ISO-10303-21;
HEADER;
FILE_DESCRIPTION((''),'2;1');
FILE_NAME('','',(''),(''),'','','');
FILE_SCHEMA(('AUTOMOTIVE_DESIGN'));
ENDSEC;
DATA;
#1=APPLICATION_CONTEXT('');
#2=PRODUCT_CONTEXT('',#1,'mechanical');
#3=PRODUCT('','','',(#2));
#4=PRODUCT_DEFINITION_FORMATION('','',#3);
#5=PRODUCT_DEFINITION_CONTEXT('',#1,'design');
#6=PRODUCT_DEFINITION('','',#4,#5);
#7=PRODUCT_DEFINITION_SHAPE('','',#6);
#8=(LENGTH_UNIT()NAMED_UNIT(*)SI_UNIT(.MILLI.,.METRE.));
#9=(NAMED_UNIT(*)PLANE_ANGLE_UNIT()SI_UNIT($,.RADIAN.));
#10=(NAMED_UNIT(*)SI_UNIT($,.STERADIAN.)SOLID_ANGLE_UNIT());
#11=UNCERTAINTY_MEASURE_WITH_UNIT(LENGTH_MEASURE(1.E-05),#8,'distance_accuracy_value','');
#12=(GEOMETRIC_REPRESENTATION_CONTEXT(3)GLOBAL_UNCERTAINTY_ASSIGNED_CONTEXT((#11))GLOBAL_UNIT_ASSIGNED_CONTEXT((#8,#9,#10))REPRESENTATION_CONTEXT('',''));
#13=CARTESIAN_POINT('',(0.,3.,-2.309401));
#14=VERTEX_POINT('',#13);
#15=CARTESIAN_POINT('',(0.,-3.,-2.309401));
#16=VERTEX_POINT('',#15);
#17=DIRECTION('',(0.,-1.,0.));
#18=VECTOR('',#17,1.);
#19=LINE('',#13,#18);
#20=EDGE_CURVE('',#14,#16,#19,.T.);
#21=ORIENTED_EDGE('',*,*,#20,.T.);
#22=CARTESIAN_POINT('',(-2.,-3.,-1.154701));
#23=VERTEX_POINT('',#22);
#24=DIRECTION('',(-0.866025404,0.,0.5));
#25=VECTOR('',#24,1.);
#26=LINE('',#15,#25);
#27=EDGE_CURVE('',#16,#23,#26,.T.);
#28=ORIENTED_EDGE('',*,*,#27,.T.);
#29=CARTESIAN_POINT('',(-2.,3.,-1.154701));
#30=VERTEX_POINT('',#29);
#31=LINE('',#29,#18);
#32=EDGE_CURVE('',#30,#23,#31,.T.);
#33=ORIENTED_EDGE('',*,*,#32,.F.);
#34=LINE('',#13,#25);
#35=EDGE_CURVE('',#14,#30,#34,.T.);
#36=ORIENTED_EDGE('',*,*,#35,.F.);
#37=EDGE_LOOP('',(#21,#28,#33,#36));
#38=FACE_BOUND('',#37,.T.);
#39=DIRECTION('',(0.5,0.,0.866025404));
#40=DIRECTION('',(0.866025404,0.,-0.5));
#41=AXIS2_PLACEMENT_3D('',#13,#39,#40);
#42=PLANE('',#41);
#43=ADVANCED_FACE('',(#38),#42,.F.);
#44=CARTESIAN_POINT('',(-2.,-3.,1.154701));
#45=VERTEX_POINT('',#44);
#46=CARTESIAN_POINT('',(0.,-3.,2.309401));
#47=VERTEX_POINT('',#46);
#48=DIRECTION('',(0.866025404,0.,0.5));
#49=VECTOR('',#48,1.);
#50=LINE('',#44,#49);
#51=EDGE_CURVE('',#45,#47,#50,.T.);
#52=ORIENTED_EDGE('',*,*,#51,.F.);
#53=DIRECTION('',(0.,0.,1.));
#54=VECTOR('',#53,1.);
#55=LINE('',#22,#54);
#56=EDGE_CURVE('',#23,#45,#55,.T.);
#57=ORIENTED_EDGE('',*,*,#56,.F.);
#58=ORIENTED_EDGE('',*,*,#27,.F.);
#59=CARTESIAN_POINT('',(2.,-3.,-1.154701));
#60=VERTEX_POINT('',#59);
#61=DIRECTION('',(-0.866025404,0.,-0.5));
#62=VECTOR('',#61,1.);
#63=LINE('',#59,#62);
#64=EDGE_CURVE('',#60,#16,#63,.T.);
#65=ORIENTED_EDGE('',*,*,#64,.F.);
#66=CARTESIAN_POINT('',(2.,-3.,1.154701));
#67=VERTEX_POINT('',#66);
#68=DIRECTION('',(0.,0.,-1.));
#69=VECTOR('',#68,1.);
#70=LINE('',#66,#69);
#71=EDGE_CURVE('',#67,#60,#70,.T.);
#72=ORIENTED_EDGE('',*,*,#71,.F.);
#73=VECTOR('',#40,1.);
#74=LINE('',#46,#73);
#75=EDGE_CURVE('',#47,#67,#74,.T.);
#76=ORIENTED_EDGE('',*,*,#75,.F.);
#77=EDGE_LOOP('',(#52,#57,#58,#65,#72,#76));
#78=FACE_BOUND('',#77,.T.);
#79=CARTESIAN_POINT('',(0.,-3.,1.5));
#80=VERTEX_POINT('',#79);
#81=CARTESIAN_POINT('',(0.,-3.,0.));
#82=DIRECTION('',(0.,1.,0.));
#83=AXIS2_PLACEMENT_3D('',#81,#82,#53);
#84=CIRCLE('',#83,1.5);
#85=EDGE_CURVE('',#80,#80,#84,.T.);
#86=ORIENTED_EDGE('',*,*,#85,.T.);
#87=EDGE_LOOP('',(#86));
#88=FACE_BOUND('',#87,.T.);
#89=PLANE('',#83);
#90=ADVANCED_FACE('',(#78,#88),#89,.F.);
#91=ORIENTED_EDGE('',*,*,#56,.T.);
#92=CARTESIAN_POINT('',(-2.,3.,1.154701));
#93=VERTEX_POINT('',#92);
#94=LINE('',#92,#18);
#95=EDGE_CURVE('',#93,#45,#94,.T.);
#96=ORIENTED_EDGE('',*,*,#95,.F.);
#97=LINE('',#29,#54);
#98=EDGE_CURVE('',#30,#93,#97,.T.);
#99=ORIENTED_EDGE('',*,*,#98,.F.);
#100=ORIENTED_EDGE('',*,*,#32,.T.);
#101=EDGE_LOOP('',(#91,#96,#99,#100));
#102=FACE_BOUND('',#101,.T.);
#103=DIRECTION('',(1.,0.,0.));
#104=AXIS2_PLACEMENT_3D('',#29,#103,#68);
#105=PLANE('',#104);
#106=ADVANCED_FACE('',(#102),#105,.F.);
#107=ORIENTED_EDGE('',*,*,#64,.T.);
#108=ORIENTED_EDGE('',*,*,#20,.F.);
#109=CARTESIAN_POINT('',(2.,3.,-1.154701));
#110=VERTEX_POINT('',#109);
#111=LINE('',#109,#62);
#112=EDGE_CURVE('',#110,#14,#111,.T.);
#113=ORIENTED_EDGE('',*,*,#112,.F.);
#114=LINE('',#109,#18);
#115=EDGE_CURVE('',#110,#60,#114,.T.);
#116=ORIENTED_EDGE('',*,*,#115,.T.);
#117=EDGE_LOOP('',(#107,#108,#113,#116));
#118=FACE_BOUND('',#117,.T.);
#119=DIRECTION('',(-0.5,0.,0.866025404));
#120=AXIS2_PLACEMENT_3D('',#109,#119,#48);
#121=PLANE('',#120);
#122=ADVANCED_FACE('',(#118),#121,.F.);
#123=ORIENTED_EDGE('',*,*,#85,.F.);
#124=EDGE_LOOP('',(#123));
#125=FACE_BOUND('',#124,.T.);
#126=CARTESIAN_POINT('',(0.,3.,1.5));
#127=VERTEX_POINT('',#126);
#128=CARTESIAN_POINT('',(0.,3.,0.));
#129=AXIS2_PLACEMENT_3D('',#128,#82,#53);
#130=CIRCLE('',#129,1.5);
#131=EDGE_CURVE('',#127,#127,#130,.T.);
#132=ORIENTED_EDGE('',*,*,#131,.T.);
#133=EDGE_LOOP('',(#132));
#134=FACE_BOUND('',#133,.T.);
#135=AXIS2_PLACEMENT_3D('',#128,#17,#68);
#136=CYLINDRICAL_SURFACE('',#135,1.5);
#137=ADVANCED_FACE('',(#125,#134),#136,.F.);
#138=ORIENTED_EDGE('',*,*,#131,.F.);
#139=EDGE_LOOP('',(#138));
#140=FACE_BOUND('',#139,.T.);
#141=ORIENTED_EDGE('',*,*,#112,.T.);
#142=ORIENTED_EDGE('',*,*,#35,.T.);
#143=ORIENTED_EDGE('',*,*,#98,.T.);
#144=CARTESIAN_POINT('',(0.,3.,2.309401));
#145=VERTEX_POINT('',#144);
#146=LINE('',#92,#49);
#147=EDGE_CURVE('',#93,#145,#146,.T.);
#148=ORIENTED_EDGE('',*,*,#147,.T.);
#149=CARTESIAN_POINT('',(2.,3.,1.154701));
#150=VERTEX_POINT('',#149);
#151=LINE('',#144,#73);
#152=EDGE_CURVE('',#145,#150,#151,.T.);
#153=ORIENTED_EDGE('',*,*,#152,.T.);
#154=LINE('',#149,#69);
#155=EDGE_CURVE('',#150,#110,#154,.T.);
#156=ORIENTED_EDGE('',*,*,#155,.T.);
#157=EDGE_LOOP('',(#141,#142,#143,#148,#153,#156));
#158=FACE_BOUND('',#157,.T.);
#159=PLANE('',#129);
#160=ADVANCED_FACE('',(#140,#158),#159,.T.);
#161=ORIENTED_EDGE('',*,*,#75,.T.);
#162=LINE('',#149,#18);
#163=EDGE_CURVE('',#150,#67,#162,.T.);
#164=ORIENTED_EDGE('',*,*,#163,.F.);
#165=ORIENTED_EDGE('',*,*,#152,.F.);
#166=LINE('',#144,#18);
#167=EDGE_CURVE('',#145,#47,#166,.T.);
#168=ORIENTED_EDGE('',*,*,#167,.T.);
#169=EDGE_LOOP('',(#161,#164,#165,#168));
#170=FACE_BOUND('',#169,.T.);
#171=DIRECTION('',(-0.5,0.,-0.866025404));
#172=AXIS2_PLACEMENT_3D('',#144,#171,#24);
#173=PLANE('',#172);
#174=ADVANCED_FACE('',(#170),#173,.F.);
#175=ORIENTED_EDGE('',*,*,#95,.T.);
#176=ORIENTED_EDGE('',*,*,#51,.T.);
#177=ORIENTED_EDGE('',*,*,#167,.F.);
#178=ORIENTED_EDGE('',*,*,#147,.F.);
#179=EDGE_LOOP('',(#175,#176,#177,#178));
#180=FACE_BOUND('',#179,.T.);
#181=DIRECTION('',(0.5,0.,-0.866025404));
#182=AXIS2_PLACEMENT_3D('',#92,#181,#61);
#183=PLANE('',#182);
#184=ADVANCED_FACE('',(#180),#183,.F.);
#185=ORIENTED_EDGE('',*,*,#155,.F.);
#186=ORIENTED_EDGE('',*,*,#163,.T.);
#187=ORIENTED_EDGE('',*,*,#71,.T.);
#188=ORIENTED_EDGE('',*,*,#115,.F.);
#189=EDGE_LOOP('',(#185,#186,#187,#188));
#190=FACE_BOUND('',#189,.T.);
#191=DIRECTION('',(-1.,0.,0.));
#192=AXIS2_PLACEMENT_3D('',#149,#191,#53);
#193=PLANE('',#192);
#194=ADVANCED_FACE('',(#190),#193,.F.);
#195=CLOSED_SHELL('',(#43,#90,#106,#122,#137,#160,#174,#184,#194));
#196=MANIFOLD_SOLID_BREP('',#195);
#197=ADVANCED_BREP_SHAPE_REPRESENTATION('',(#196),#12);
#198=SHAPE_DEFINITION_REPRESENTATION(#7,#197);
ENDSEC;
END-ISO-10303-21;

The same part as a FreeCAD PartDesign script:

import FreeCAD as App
import Part
import Sketcher
from FreeCAD import Vector
Q = App.Units.Quantity

doc = App.newDocument("Part")
body = doc.addObject("PartDesign::Body", "Body")

sketch1 = body.newObject("Sketcher::SketchObject", "Sketch")
sketch1.AttachmentSupport = (doc.getObject("XZ_Plane"), [""])
sketch1.MapMode = "FlatFace"
sketch1.addGeometry(Part.LineSegment(Vector(2, -1.2, 0), Vector(0, -2.3, 0)), False)
sketch1.addGeometry(Part.LineSegment(Vector(0, -2.3, 0), Vector(-2, -1.2, 0)), False)
sketch1.addGeometry(Part.LineSegment(Vector(-2, -1.2, 0), Vector(-2, 1.2, 0)), False)
sketch1.addGeometry(Part.LineSegment(Vector(-2, 1.2, 0), Vector(0, 2.3, 0)), False)
sketch1.addGeometry(Part.LineSegment(Vector(0, 2.3, 0), Vector(2, 1.2, 0)), False)
sketch1.addGeometry(Part.LineSegment(Vector(2, 1.2, 0), Vector(2, -1.2, 0)), False)
sketch1.addGeometry(Part.Circle(Vector(0, 0, 0), Vector(0, 0, 1), 1.5), False)
sketch1.addConstraint(Sketcher.Constraint("Coincident", 0, 2, 1, 1))
sketch1.addConstraint(Sketcher.Constraint("Coincident", 1, 2, 2, 1))
sketch1.addConstraint(Sketcher.Constraint("Coincident", 2, 2, 3, 1))
sketch1.addConstraint(Sketcher.Constraint("Coincident", 3, 2, 4, 1))
sketch1.addConstraint(Sketcher.Constraint("Coincident", 4, 2, 5, 1))
sketch1.addConstraint(Sketcher.Constraint("Coincident", 5, 2, 0, 1))
sketch1.addConstraint(Sketcher.Constraint("Vertical", 2))
sketch1.addConstraint(Sketcher.Constraint("Vertical", 5))
sketch1.addConstraint(Sketcher.Constraint("Coincident", 6, 3, -1, 1))
sketch1.addConstraint(Sketcher.Constraint("Symmetric", 0, 2, 3, 2, -1, 1))
sketch1.addConstraint(Sketcher.Constraint("Symmetric", 1, 2, 4, 2, -1, 1))
sketch1.addConstraint(Sketcher.Constraint("PointOnObject", 0, 2, -2))
sketch1.addConstraint(Sketcher.Constraint("Parallel", 0, 3))
sketch1.addConstraint(Sketcher.Constraint("Horizontal", 2, 2, 4, 2))
sketch1.addConstraint(Sketcher.Constraint("Diameter", 6, 3.0))
sketch1.addConstraint(Sketcher.Constraint("Angle", 0, Q("-150 deg")))
sketch1.addConstraint(Sketcher.Constraint("DistanceX", 1, 2, -1, 1, 2.0))
sketch1.addConstraint(Sketcher.Constraint("DistanceY", 2, 1, 2, 2, 2.309401))
pad1 = body.newObject("PartDesign::Pad", "Pad")
pad1.Profile = sketch1
pad1.Length = 6
pad1.Midplane = True

doc.recompute()
